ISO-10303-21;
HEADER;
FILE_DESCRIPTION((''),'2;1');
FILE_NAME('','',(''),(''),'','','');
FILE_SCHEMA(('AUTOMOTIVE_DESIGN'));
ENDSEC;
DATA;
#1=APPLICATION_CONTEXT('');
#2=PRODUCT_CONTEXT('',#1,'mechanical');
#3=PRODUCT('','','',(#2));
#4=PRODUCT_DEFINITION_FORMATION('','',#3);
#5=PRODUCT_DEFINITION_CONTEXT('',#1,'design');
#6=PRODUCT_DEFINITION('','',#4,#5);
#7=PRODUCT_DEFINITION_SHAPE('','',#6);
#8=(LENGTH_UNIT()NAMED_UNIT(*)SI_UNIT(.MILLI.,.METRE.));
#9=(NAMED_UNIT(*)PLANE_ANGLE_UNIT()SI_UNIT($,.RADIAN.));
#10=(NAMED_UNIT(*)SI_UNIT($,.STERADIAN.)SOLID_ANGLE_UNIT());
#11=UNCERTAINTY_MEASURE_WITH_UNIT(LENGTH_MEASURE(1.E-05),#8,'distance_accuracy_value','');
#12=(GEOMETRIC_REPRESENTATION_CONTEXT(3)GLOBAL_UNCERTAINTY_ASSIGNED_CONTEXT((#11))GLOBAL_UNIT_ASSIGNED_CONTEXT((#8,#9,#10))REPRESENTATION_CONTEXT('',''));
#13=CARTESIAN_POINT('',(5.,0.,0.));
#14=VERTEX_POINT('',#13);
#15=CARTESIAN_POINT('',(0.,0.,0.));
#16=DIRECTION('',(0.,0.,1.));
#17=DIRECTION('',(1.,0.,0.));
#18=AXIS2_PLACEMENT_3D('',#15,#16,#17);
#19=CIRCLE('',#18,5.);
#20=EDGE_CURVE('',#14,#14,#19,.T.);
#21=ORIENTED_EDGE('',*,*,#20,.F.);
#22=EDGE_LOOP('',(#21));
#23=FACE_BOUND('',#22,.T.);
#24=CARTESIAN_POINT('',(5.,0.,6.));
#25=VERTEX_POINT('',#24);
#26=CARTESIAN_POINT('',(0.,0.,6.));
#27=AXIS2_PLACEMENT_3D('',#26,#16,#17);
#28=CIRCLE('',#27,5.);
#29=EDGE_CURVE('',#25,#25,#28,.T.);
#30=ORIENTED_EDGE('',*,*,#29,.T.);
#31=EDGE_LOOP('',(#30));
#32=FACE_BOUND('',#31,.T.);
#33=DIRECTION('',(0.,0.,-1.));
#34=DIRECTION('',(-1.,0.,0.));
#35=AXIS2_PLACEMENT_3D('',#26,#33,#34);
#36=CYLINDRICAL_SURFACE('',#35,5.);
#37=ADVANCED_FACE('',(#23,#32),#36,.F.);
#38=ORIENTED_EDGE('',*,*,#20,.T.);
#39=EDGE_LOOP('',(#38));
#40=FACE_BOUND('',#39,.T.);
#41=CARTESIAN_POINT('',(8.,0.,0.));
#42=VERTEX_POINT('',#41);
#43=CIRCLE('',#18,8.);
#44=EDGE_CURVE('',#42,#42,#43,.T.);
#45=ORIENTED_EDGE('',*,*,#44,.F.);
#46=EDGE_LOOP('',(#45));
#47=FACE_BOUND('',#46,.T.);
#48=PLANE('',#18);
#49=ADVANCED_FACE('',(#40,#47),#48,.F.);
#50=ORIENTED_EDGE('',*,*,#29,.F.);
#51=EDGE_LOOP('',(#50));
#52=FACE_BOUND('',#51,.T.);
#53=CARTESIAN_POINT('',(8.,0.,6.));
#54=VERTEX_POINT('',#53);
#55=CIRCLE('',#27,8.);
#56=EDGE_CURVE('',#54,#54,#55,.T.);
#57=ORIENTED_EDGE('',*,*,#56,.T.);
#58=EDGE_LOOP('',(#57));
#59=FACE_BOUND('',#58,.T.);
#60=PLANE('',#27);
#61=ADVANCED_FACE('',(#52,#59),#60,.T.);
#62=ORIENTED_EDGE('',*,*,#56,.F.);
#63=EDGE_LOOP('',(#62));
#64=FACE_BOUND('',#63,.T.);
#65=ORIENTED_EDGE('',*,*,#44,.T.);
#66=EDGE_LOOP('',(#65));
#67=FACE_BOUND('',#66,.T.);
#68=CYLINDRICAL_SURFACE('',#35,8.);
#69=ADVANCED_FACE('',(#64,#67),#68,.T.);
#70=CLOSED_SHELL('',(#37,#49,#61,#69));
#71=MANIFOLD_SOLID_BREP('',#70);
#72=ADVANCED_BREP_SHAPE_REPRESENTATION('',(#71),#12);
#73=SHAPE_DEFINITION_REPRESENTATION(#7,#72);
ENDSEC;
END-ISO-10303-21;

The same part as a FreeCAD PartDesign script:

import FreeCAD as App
import Part
import Sketcher

V = App.Vector
Q = App.Units.Quantity

doc = App.newDocument("Part")
body = doc.addObject("PartDesign::Body", "Body")

sketch1 = doc.addObject("Sketcher::SketchObject", "Sketch")
body.addObject(sketch1)
sketch1.AttachmentSupport = (doc.XY_Plane, [""])
sketch1.MapMode = "FlatFace"
sketch1.addGeometry([
    Part.Circle(V(0, 0, 0), V(0, 0, 1), 8),
    Part.Circle(V(0, 0, 0), V(0, 0, 1), 5),
], False)
sketch1.addConstraint([
    Sketcher.Constraint("Coincident", 0, 3, -1, 1),
    Sketcher.Constraint("Coincident", 1, 3, -1, 1),
    Sketcher.Constraint("Diameter", 0, Q("16 mm")),
    Sketcher.Constraint("Diameter", 1, Q("10 mm")),
])
pad1 = doc.addObject("PartDesign::Pad", "Pad")
body.addObject(pad1)
pad1.Profile = sketch1
pad1.Length = 6

doc.recompute()
